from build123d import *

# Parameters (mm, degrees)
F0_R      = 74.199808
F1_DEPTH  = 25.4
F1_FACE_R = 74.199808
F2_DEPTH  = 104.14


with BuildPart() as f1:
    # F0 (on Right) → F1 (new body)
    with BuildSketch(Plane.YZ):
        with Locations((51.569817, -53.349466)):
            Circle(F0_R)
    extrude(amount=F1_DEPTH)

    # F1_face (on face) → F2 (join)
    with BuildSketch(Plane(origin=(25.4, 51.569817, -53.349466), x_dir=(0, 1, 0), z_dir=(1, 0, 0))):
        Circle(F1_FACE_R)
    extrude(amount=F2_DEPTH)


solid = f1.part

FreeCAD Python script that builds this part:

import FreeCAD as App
import Part
import Sketcher
from FreeCAD import Vector

doc = App.newDocument("Part")
params = doc.addObject("Spreadsheet::Sheet", "Params")
for row, (alias, value) in enumerate([
    ("pad1_length", "1 in"),
    ("pad2_length", "4.1 in"),
], start=1):
    params.set(f"A{row}", alias)
    params.set(f"B{row}", "=" + value)
    params.setAlias(f"B{row}", alias)

body = doc.addObject("PartDesign::Body", "Body")

# Sketch on YZ plane
sketch1 = body.newObject("Sketcher::SketchObject", "Sketch")
sketch1.AttachmentSupport = (doc.getObject("YZ_Plane"), [""])
sketch1.MapMode = "FlatFace"
sketch1.addGeometry(Part.Circle(Vector(52, -53, 0), Vector(0, 0, 1), 74), False)
sketch1.addConstraint(Sketcher.Constraint("Diameter", 0, 148.399616))
sketch1.addConstraint(Sketcher.Constraint("DistanceX", -1, 1, 0, 3, 51.569817))
sketch1.addConstraint(Sketcher.Constraint("DistanceY", 0, 3, -1, 1, 53.349466))
pad1 = body.newObject("PartDesign::Pad", "Pad")
pad1.Profile = sketch1
pad1.setExpression("Length", "Params.pad1_length")

# Sketch on YZ plane
sketch2 = body.newObject("Sketcher::SketchObject", "Sketch001")
sketch2.AttachmentSupport = (doc.getObject("YZ_Plane"), [""])
sketch2.MapMode = "FlatFace"
sketch2.AttachmentOffset = App.Placement(Vector(0, 0, 1 * 25.4), App.Rotation())
sketch2.addGeometry(Part.Circle(Vector(52, -53, 0), Vector(0, 0, 1), 74), False)
sketch2.addConstraint(Sketcher.Constraint("Diameter", 0, 148.399616))
sketch2.addConstraint(Sketcher.Constraint("DistanceX", -1, 1, 0, 3, 51.569817))
sketch2.addConstraint(Sketcher.Constraint("DistanceY", 0, 3, -1, 1, 53.349466))
pad2 = body.newObject("PartDesign::Pad", "Pad001")
pad2.Profile = sketch2
pad2.setExpression("Length", "Params.pad2_length")

doc.recompute()
